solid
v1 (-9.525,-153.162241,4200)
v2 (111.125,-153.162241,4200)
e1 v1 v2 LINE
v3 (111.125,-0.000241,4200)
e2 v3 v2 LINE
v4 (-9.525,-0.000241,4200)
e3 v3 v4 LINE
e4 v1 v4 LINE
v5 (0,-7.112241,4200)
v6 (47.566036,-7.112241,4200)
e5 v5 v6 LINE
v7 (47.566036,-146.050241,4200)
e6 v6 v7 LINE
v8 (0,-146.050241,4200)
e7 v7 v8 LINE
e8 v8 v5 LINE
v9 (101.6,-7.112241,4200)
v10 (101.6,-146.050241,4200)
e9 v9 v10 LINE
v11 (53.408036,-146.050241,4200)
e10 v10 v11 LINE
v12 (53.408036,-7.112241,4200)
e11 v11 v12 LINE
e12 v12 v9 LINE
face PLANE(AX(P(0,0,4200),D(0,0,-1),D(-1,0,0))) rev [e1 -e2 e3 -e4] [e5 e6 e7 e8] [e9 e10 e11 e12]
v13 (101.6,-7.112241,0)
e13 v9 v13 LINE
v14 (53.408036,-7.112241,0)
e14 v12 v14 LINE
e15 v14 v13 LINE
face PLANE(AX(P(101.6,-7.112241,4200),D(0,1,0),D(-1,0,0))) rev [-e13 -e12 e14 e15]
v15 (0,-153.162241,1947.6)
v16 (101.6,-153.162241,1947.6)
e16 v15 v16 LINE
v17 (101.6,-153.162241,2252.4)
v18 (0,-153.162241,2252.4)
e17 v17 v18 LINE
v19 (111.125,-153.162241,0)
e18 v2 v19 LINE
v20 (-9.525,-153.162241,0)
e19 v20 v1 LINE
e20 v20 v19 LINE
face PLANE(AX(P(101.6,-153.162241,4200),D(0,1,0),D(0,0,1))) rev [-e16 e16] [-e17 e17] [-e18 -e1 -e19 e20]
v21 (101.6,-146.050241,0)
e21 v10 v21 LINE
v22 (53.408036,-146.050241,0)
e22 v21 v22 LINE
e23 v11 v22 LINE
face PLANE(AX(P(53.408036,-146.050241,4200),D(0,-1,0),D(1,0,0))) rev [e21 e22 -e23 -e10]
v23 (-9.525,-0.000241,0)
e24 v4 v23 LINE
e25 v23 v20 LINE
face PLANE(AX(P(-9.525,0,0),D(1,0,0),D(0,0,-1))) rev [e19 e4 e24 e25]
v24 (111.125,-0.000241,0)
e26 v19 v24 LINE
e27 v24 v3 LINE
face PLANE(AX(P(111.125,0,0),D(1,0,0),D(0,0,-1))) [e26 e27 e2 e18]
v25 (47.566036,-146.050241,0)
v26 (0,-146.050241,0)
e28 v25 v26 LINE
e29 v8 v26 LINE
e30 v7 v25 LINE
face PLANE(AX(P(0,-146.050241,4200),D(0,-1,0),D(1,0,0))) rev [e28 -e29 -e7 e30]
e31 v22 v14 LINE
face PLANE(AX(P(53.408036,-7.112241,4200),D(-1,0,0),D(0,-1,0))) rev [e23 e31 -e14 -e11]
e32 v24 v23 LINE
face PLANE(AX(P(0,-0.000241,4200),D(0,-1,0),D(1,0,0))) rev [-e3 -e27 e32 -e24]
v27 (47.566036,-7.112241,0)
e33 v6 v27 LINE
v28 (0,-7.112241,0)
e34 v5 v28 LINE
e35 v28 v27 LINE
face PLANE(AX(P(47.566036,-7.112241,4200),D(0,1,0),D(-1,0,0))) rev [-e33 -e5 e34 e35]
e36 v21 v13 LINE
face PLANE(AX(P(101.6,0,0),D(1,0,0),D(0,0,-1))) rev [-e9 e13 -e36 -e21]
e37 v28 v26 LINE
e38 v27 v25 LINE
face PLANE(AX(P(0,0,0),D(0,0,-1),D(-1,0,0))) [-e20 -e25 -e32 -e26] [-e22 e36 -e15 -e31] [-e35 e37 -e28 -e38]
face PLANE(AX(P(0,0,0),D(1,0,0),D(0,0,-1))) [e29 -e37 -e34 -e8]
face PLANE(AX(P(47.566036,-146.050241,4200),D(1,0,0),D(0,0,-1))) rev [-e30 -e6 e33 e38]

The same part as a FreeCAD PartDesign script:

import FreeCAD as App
import Part
import Sketcher

V = App.Vector
Q = App.Units.Quantity

doc = App.newDocument("Part")
body = doc.addObject("PartDesign::Body", "Body")

# Sketch on XY plane
sketch1 = body.newObject("Sketcher::SketchObject", "Sketch")
sketch1.AttachmentSupport = (doc.getObject("XY_Plane"), [""])
sketch1.MapMode = "FlatFace"
sketch1.addGeometry([
    Part.LineSegment(V(102, 0, 0), V(0, 0, 0)),  # 0
    Part.LineSegment(V(0, 0, 0), V(0, -7, 0)),  # 1
    Part.LineSegment(V(0, -7, 0), V(48, -7, 0)),  # 2
    Part.LineSegment(V(48, -7, 0), V(48, -146, 0)),  # 3
    Part.LineSegment(V(48, -146, 0), V(0, -146, 0)),  # 4
    Part.LineSegment(V(0, -146, 0), V(0, -153, 0)),  # 5
    Part.LineSegment(V(0, -153, 0), V(102, -153, 0)),  # 6
    Part.LineSegment(V(102, -153, 0), V(102, -146, 0)),  # 7
    Part.LineSegment(V(102, -146, 0), V(53, -146, 0)),  # 8
    Part.LineSegment(V(53, -146, 0), V(53, -7, 0)),  # 9
    Part.LineSegment(V(53, -7, 0), V(102, -7, 0)),  # 10
    Part.LineSegment(V(102, -7, 0), V(102, 0, 0)),  # 11
], False)
sketch1.addConstraint([
    Sketcher.Constraint("Coincident", 0, 2, 1, 1),
    Sketcher.Constraint("Coincident", 1, 2, 2, 1),
    Sketcher.Constraint("Coincident", 2, 2, 3, 1),
    Sketcher.Constraint("Coincident", 3, 2, 4, 1),
    Sketcher.Constraint("Coincident", 4, 2, 5, 1),
    Sketcher.Constraint("Coincident", 5, 2, 6, 1),
    Sketcher.Constraint("Coincident", 6, 2, 7, 1),
    Sketcher.Constraint("Coincident", 7, 2, 8, 1),
    Sketcher.Constraint("Coincident", 8, 2, 9, 1),
    Sketcher.Constraint("Coincident", 9, 2, 10, 1),
    Sketcher.Constraint("Coincident", 10, 2, 11, 1),
    Sketcher.Constraint("Coincident", 11, 2, 0, 1),
    Sketcher.Constraint("Horizontal", 0),
    Sketcher.Constraint("Vertical", 1),
    Sketcher.Constraint("Horizontal", 2),
    Sketcher.Constraint("Vertical", 3),
    Sketcher.Constraint("Horizontal", 4),
    Sketcher.Constraint("Vertical", 5),
    Sketcher.Constraint("Horizontal", 6),
    Sketcher.Constraint("Vertical", 7),
    Sketcher.Constraint("Horizontal", 8),
    Sketcher.Constraint("Vertical", 9),
    Sketcher.Constraint("Horizontal", 10),
    Sketcher.Constraint("Vertical", 11),
    Sketcher.Constraint("PointOnObject", 0, 2, -2),
    Sketcher.Constraint("PointOnObject", 4, 2, -2),
    Sketcher.Constraint("Horizontal", 4, 2, 7, 2),
    Sketcher.Constraint("Horizontal", 2, 2, 9, 2),
    Sketcher.Constraint("Vertical", 7, 2, 10, 2),
    Sketcher.Constraint("Equal", 1, 5),
    Sketcher.Constraint("DistanceX", 0, 2, 0, 1, Q("4 in")),
    Sketcher.Constraint("DistanceY", 1, 2, 1, 1, Q("0.28 in")),
    Sketcher.Constraint("DistanceY", 3, 2, 3, 1, Q("5.47 in")),
    Sketcher.Constraint("DistanceX", 3, 2, 8, 2, Q("0.23 in")),
    Sketcher.Constraint("DistanceX", 2, 1, 2, 2, 47.566036),
    Sketcher.Constraint("DistanceY", 0, 2, -1, 1, 0.000241),
])
pad1 = body.newObject("PartDesign::Pad", "Pad")
pad1.Profile = sketch1
pad1.Length = 4200

# Sketch on YZ plane
sketch2 = body.newObject("Sketcher::SketchObject", "Sketch001")
sketch2.AttachmentSupport = (doc.getObject("YZ_Plane"), [""])
sketch2.MapMode = "FlatFace"
sketch2.AttachmentOffset = App.Placement(V(0, 0, 4 * 25.4), App.Rotation())
sketch2.addGeometry([
    Part.LineSegment(V(0, 4200, 0), V(-153, 4200, 0)),
    Part.LineSegment(V(-153, 4200, 0), V(-153, 0, 0)),
    Part.LineSegment(V(-153, 0, 0), V(0, 0, 0)),
    Part.LineSegment(V(0, 0, 0), V(0, 4200, 0)),
], False)
sketch2.addConstraint([
    Sketcher.Constraint("Coincident", 0, 2, 1, 1),
    Sketcher.Constraint("Coincident", 1, 2, 2, 1),
    Sketcher.Constraint("Coincident", 2, 2, 3, 1),
    Sketcher.Constraint("Coincident", 3, 2, 0, 1),
    Sketcher.Constraint("Horizontal", 0),
    Sketcher.Constraint("Vertical", 1),
    Sketcher.Constraint("Horizontal", 2),
    Sketcher.Constraint("Vertical", 3),
    Sketcher.Constraint("PointOnObject", 1, 2, -1),
    Sketcher.Constraint("DistanceX", 0, 2, 0, 1, Q("6.03 in")),
    Sketcher.Constraint("DistanceY", 1, 2, 1, 1, 4200.0),
    Sketcher.Constraint("DistanceX", 0, 2, -1, 1, 153.162241),
])
pad2 = body.newObject("PartDesign::Pad", "Pad001")
pad2.Profile = sketch2
pad2.Length = Q("0.375 in")

# Sketch on YZ plane
sketch3 = body.newObject("Sketcher::SketchObject", "Sketch002")
sketch3.AttachmentSupport = (doc.getObject("YZ_Plane"), [""])
sketch3.MapMode = "FlatFace"
sketch3.addGeometry([
    Part.LineSegment(V(0, 0, 0), V(-153, 0, 0)),
    Part.LineSegment(V(-153, 0, 0), V(-153, 4200, 0)),
    Part.LineSegment(V(-153, 4200, 0), V(0, 4200, 0)),
    Part.LineSegment(V(0, 4200, 0), V(0, 0, 0)),
], False)
sketch3.addConstraint([
    Sketcher.Constraint("Coincident", 0, 2, 1, 1),
    Sketcher.Constraint("Coincident", 1, 2, 2, 1),
    Sketcher.Constraint("Coincident", 2, 2, 3, 1),
    Sketcher.Constraint("Coincident", 3, 2, 0, 1),
    Sketcher.Constraint("Horizontal", 0),
    Sketcher.Constraint("Vertical", 1),
    Sketcher.Constraint("Horizontal", 2),
    Sketcher.Constraint("Vertical", 3),
    Sketcher.Constraint("PointOnObject", 0, 2, -1),
    Sketcher.Constraint("DistanceX", 0, 2, 0, 1, Q("6.03 in")),
    Sketcher.Constraint("DistanceY", 1, 1, 1, 2, 4200.0),
    Sketcher.Constraint("DistanceX", 0, 2, -1, 1, 153.162241),
])
pad3 = body.newObject("PartDesign::Pad", "Pad002")
pad3.Profile = sketch3
pad3.Length = Q("0.375 in")
pad3.Reversed = True

doc.recompute()
